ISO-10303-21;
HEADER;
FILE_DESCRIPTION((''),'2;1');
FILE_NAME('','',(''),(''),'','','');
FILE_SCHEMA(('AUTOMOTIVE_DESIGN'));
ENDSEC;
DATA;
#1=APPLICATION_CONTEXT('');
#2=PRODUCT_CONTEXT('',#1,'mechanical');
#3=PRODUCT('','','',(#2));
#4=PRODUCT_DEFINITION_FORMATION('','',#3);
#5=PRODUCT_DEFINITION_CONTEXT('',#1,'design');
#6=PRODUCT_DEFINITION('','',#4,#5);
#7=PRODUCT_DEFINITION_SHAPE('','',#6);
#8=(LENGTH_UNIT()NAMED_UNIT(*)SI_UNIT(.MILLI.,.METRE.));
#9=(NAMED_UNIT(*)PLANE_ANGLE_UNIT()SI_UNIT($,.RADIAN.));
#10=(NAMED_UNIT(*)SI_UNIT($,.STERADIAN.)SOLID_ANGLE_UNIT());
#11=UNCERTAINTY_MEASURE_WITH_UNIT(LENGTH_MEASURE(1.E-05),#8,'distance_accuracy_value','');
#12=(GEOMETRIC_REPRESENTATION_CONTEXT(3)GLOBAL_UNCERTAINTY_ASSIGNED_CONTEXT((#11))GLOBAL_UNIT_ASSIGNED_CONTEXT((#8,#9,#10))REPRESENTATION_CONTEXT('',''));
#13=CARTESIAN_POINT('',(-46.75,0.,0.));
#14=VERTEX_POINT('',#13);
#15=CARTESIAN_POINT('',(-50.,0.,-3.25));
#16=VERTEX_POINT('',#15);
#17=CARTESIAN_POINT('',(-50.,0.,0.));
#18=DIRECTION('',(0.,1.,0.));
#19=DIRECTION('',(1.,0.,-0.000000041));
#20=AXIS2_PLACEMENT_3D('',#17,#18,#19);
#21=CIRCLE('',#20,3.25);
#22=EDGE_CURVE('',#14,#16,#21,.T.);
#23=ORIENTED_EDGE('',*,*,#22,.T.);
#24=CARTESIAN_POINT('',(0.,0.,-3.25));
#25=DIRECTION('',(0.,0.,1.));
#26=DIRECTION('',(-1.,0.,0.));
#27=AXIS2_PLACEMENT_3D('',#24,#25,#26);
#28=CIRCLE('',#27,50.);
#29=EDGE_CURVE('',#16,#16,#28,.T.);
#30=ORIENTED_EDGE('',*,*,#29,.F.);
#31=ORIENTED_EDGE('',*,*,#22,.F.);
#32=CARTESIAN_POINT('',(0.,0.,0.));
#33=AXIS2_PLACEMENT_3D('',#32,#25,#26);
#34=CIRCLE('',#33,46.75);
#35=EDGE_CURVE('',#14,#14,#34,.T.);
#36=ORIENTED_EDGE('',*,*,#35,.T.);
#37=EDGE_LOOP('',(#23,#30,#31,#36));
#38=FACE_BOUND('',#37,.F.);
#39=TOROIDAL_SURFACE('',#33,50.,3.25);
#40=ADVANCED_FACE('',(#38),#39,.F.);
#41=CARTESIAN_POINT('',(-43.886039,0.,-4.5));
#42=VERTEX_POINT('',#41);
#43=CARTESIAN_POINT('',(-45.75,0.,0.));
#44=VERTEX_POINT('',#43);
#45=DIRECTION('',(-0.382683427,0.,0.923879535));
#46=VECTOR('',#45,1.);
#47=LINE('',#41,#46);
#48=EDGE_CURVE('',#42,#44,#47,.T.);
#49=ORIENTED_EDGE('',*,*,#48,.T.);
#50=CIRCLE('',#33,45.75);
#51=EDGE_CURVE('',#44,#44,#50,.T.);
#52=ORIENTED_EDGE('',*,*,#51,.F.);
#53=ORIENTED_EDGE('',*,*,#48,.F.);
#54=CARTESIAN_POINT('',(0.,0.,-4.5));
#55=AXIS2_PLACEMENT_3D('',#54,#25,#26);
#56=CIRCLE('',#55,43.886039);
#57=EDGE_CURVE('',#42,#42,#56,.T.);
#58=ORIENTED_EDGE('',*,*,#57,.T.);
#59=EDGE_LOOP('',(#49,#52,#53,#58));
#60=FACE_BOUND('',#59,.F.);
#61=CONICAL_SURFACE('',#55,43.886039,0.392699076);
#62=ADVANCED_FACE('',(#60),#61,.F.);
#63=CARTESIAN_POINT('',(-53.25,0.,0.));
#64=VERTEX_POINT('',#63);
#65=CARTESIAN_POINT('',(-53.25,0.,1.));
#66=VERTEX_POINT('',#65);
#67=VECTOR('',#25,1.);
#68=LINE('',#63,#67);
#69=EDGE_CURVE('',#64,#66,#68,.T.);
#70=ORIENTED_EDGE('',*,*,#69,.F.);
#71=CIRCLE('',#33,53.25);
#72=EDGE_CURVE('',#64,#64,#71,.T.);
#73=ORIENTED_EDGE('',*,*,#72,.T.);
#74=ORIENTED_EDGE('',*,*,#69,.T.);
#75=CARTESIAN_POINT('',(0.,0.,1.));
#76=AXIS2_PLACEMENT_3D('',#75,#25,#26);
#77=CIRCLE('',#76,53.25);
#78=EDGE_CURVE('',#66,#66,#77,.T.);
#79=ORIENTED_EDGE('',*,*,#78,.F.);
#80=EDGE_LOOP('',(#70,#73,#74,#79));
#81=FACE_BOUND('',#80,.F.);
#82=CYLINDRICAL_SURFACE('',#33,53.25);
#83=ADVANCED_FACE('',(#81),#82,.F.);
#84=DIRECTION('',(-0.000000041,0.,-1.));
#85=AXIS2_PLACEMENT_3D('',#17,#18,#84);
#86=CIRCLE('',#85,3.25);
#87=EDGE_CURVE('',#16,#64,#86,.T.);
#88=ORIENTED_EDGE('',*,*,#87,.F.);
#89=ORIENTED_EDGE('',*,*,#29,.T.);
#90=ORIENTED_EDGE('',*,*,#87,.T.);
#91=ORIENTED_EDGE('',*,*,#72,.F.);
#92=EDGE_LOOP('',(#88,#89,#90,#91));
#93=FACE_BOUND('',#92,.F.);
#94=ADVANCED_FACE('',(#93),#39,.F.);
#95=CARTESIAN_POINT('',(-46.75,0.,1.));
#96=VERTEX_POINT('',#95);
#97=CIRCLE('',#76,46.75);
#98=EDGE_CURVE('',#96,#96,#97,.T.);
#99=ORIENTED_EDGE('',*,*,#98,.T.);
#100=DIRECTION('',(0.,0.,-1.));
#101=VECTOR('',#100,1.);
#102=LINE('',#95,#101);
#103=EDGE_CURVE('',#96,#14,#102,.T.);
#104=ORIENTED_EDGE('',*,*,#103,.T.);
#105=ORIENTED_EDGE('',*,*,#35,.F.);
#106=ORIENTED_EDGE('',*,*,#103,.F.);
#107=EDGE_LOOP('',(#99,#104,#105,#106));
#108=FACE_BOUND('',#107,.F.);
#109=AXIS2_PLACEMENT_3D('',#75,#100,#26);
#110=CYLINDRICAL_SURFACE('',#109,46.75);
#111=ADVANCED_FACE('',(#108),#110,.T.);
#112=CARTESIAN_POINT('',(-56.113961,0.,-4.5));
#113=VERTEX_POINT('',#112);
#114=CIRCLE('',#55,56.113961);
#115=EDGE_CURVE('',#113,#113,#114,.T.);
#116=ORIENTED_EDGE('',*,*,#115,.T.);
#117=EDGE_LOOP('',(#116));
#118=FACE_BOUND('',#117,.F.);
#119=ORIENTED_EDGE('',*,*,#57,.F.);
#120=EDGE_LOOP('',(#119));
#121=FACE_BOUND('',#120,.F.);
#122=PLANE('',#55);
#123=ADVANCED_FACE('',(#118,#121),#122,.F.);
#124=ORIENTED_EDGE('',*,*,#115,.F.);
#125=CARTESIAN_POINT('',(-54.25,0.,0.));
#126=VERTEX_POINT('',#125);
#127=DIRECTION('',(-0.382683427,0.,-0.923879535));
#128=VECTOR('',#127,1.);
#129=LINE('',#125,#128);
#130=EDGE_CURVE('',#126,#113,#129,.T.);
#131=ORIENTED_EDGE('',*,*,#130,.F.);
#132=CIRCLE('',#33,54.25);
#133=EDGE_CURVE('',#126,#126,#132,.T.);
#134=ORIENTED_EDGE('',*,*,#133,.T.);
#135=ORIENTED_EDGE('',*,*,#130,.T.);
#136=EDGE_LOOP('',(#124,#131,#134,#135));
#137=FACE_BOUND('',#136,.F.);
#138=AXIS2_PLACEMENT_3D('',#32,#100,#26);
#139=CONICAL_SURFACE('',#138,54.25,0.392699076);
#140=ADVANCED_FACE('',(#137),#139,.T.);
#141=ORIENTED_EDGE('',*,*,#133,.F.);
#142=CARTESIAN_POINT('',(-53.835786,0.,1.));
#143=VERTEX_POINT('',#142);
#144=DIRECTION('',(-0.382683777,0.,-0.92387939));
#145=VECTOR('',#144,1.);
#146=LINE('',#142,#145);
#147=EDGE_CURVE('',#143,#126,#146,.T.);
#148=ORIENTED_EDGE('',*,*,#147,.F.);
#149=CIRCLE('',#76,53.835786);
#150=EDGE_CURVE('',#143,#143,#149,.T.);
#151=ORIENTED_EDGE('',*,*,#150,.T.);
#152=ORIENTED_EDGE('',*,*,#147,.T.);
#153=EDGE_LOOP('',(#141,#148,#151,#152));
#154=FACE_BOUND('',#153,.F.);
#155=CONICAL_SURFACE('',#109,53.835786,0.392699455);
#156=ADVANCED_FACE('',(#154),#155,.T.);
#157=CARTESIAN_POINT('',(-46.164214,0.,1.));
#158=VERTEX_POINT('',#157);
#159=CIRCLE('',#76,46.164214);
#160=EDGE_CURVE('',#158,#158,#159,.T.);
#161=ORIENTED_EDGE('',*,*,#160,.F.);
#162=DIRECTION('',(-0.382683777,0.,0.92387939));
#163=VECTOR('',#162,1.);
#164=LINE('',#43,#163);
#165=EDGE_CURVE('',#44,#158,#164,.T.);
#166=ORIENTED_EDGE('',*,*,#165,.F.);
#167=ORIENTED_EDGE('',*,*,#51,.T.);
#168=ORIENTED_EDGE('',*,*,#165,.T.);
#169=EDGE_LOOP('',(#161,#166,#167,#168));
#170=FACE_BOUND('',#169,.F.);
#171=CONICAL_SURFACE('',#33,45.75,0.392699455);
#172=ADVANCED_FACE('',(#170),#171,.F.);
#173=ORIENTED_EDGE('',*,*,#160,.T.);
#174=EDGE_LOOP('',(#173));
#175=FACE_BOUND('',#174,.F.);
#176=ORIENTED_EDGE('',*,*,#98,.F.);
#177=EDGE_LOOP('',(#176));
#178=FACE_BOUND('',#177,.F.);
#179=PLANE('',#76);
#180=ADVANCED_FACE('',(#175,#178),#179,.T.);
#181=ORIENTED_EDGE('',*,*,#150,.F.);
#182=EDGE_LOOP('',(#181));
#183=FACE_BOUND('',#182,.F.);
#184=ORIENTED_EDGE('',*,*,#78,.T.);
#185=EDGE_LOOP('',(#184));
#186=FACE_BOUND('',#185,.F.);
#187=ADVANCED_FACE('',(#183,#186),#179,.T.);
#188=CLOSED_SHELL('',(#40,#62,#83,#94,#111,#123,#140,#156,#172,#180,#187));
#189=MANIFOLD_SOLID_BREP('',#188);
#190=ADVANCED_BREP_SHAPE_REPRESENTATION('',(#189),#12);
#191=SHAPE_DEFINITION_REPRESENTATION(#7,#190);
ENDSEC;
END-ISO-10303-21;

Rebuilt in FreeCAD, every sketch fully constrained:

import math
import FreeCAD as App
import Part
import Sketcher

V = App.Vector
Q = App.Units.Quantity

doc = App.newDocument("Part")
body = doc.addObject("PartDesign::Body", "Body")

sketch1 = body.newObject("Sketcher::SketchObject", "Sketch")
sketch1.AttachmentSupport = (doc.getObject("XZ_Plane"), [""])
sketch1.MapMode = "FlatFace"
sketch1.addGeometry(Part.ArcOfCircle(Part.Circle(V(-50, 0, 0), V(0, 0, 1), 3.25), math.radians(-179.999998), math.radians(-90.000002)), False)
sketch1.addGeometry(Part.LineSegment(V(-53.25, 0, 0), V(-53.25, 1, 0)), False)
sketch1.addGeometry(Part.LineSegment(V(-53.25, 1, 0), V(-53.835786, 1, 0)), False)
sketch1.addGeometry(Part.LineSegment(V(-53.835786, 1, 0), V(-54.25, 0, 0)), False)
sketch1.addGeometry(Part.LineSegment(V(-54.25, 0, 0), V(-56.113961, -4.5, 0)), False)
sketch1.addGeometry(Part.LineSegment(V(-56.113961, -4.5, 0), V(-43.886039, -4.5, 0)), False)
sketch1.addGeometry(Part.LineSegment(V(-43.886039, -4.5, 0), V(-45.75, 0, 0)), False)
sketch1.addGeometry(Part.LineSegment(V(-45.75, 0, 0), V(-46.164214, 1, 0)), False)
sketch1.addGeometry(Part.LineSegment(V(-46.164214, 1, 0), V(-46.75, 1, 0)), False)
sketch1.addGeometry(Part.LineSegment(V(-46.75, 1, 0), V(-46.75, 0, 0)), False)
sketch1.addGeometry(Part.ArcOfCircle(Part.Circle(V(-50, 0, 0), V(0, 0, 1), 3.25), math.radians(-89.999998), math.radians(-0.000002)), False)
sketch1.addConstraint(Sketcher.Constraint("Tangent", 0, 1, 1, 1))
sketch1.addConstraint(Sketcher.Constraint("Coincident", 1, 2, 2, 1))
sketch1.addConstraint(Sketcher.Constraint("Coincident", 2, 2, 3, 1))
sketch1.addConstraint(Sketcher.Constraint("Coincident", 3, 2, 4, 1))
sketch1.addConstraint(Sketcher.Constraint("Coincident", 4, 2, 5, 1))
sketch1.addConstraint(Sketcher.Constraint("Coincident", 5, 2, 6, 1))
sketch1.addConstraint(Sketcher.Constraint("Coincident", 6, 2, 7, 1))
sketch1.addConstraint(Sketcher.Constraint("Coincident", 7, 2, 8, 1))
sketch1.addConstraint(Sketcher.Constraint("Coincident", 8, 2, 9, 1))
sketch1.addConstraint(Sketcher.Constraint("Tangent", 9, 2, 10, 2))
sketch1.addConstraint(Sketcher.Constraint("Tangent", 10, 1, 0, 2))
sketch1.addConstraint(Sketcher.Constraint("Vertical", 1))
sketch1.addConstraint(Sketcher.Constraint("Horizontal", 2))
sketch1.addConstraint(Sketcher.Constraint("Horizontal", 5))
sketch1.addConstraint(Sketcher.Constraint("Horizontal", 8))
sketch1.addConstraint(Sketcher.Constraint("Vertical", 9))
sketch1.addConstraint(Sketcher.Constraint("Equal", 0, 10))
sketch1.addConstraint(Sketcher.Constraint("PointOnObject", 0, 3, -1))
sketch1.addConstraint(Sketcher.Constraint("PointOnObject", 3, 2, -1))
sketch1.addConstraint(Sketcher.Constraint("PointOnObject", 6, 2, -1))
sketch1.addConstraint(Sketcher.Constraint("Parallel", 3, 4))
sketch1.addConstraint(Sketcher.Constraint("Parallel", 6, 7))
sketch1.addConstraint(Sketcher.Constraint("Horizontal", 2, 2, 7, 2))
sketch1.addConstraint(Sketcher.Constraint("Vertical", 0, 3, 10, 1))
sketch1.addConstraint(Sketcher.Constraint("Equal", 2, 8))
sketch1.addConstraint(Sketcher.Constraint("Equal", 4, 6))
sketch1.addConstraint(Sketcher.Constraint("DistanceY", 1, 1, 1, 2, 1.0))
sketch1.addConstraint(Sketcher.Constraint("Radius", 0, 3.25))
sketch1.addConstraint(Sketcher.Constraint("DistanceX", 0, 3, -1, 1, 50.0))
sketch1.addConstraint(Sketcher.Constraint("Angle", 4, Q("-112.5 deg")))
sketch1.addConstraint(Sketcher.Constraint("DistanceX", 3, 2, 0, 1, 1.0))
sketch1.addConstraint(Sketcher.Constraint("DistanceY", 4, 2, -1, 1, 4.5))
revolution = body.newObject("PartDesign::Revolution", "Revolution")
revolution.Profile = sketch1
revolution.ReferenceAxis = (sketch1, ["V_Axis"])
revolution.Angle = 360

doc.recompute()
